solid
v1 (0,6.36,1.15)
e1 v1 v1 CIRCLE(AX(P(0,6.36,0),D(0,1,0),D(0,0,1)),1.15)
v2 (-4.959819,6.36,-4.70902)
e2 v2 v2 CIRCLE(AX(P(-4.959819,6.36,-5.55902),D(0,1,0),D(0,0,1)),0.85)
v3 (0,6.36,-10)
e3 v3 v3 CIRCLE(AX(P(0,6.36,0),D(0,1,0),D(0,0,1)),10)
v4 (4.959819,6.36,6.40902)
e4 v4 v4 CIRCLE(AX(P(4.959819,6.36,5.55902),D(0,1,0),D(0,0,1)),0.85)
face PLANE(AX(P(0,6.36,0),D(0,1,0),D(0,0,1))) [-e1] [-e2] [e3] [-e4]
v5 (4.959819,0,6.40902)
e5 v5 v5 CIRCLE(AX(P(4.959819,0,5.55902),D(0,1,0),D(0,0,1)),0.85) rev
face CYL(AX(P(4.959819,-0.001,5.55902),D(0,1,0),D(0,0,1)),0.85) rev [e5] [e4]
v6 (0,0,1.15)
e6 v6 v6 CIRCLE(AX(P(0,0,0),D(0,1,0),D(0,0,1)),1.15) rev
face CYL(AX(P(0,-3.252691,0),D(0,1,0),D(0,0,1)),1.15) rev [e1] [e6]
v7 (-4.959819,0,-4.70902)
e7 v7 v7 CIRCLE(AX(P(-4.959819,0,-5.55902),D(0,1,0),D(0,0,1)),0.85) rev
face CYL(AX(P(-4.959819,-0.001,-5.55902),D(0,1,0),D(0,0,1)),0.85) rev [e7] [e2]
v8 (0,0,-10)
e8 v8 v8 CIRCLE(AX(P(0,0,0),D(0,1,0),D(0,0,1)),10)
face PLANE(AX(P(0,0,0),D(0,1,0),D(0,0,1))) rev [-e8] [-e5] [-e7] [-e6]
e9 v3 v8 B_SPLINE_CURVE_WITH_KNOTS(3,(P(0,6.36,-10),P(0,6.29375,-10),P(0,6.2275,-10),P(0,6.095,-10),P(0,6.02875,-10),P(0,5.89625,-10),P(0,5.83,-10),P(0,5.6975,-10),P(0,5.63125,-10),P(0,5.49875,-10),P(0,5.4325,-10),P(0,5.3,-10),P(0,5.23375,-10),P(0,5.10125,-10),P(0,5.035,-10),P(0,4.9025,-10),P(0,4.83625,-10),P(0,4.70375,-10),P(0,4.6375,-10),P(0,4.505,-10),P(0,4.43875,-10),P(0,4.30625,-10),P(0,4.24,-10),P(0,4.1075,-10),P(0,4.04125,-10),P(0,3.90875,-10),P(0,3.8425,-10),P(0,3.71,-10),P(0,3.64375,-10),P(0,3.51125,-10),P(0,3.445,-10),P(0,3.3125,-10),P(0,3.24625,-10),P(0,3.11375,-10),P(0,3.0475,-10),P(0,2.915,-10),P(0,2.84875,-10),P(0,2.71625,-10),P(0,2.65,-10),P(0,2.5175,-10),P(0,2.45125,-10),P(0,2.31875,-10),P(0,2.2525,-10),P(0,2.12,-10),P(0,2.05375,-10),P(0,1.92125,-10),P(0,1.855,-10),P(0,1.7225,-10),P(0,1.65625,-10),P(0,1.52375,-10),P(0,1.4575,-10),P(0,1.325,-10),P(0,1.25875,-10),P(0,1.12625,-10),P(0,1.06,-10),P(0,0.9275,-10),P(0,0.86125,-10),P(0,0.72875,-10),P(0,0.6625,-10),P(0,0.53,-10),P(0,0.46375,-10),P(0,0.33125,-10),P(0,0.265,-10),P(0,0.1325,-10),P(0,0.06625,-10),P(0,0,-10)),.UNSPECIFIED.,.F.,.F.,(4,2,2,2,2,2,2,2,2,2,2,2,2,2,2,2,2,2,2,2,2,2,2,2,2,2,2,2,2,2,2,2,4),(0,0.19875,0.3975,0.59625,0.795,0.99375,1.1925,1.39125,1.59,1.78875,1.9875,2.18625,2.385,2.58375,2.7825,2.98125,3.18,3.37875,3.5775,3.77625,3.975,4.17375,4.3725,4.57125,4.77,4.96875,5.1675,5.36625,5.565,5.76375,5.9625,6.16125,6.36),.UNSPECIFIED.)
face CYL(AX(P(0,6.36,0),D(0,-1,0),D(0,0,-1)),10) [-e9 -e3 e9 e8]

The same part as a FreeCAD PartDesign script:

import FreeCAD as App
import Part
import Sketcher

V = App.Vector

doc = App.newDocument("Part")
body = doc.addObject("PartDesign::Body", "Body")

sketch1 = body.newObject("Sketcher::SketchObject", "Sketch")
sketch1.AttachmentSupport = (doc.getObject("XZ_Plane"), [""])
sketch1.MapMode = "FlatFace"
sketch1.addGeometry(Part.Circle(V(0, 0, 0), V(0, 0, 1), 10), False)
sketch1.addConstraint([
    Sketcher.Constraint("Coincident", 0, 3, -1, 1),
    Sketcher.Constraint("Diameter", 0, 20.0),
])
pad1 = body.newObject("PartDesign::Pad", "Pad")
pad1.Profile = sketch1
pad1.Length = 6.36
pad1.Reversed = True

sketch2 = body.newObject("Sketcher::SketchObject", "Sketch001")
sketch2.AttachmentSupport = (doc.getObject("XZ_Plane"), [""])
sketch2.MapMode = "FlatFace"
sketch2.AttachmentOffset = App.Placement(V(0, 0, -6.36), App.Rotation())
sketch2.addGeometry(Part.Circle(V(0, 0, 0), V(0, 0, 1), 1.15), False)
sketch2.addConstraint([
    Sketcher.Constraint("Coincident", 0, 3, -1, 1),
    Sketcher.Constraint("Diameter", 0, 2.3),
])
pocket1 = body.newObject("PartDesign::Pocket", "Pocket")
pocket1.Profile = sketch2
pocket1.Length = 6.36
pocket1.Reversed = True

sketch3 = body.newObject("Sketcher::SketchObject", "Sketch002")
sketch3.AttachmentSupport = (doc.getObject("XZ_Plane"), [""])
sketch3.MapMode = "FlatFace"
sketch3.AttachmentOffset = App.Placement(V(0, 0, -6.36), App.Rotation())
sketch3.addGeometry(Part.Circle(V(4.959819, 5.55902, 0), V(0, 0, 1), 0.85), False)
sketch3.addConstraint([
    Sketcher.Constraint("Diameter", 0, 1.7),
    Sketcher.Constraint("DistanceX", -1, 1, 0, 3, 4.959819),
    Sketcher.Constraint("DistanceY", -1, 1, 0, 3, 5.55902),
])
pocket2 = body.newObject("PartDesign::Pocket", "Pocket001")
pocket2.Profile = sketch3
pocket2.Type = "UpToFirst"
pocket2.Reversed = True

sketch4 = body.newObject("Sketcher::SketchObject", "Sketch003")
sketch4.AttachmentSupport = (doc.getObject("XZ_Plane"), [""])
sketch4.MapMode = "FlatFace"
sketch4.AttachmentOffset = App.Placement(V(0, 0, -6.36), App.Rotation())
sketch4.addGeometry(Part.Circle(V(-4.959819, -5.55902, 0), V(0, 0, 1), 0.85), False)
sketch4.addConstraint([
    Sketcher.Constraint("Diameter", 0, 1.7),
    Sketcher.Constraint("DistanceX", 0, 3, -1, 1, 4.959819),
    Sketcher.Constraint("DistanceY", 0, 3, -1, 1, 5.55902),
])
pocket3 = body.newObject("PartDesign::Pocket", "Pocket002")
pocket3.Profile = sketch4
pocket3.Type = "UpToFirst"
pocket3.Reversed = True

doc.recompute()
